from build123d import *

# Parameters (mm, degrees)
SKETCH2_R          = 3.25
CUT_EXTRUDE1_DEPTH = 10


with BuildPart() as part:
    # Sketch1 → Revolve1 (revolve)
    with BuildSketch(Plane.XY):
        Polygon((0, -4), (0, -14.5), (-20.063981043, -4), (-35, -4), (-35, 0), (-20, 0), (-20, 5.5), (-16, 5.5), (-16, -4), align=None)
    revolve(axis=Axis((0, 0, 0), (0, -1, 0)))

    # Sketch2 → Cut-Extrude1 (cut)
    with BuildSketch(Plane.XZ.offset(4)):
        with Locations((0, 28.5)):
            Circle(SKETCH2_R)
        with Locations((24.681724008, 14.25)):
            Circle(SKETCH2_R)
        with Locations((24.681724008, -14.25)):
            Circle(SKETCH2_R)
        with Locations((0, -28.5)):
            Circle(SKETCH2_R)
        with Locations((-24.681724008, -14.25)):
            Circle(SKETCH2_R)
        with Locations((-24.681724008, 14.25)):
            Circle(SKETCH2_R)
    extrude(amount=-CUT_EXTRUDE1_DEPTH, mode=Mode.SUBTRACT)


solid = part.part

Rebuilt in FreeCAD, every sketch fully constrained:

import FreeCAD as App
import Part
import Sketcher
from FreeCAD import Vector

doc = App.newDocument("Part")
body = doc.addObject("PartDesign::Body", "Body")

# Sketch on XY plane
sketch1 = body.newObject("Sketcher::SketchObject", "Sketch")
sketch1.AttachmentSupport = (doc.getObject("XY_Plane"), [""])
sketch1.MapMode = "FlatFace"
sketch1.addGeometry(Part.LineSegment(Vector(0, -14.5, 0), Vector(0, -4, 0)), False)
sketch1.addGeometry(Part.LineSegment(Vector(0, -4, 0), Vector(-16, -4, 0)), False)
sketch1.addGeometry(Part.LineSegment(Vector(-16, -4, 0), Vector(-16, 5.5, 0)), False)
sketch1.addGeometry(Part.LineSegment(Vector(-16, 5.5, 0), Vector(-20, 5.5, 0)), False)
sketch1.addGeometry(Part.LineSegment(Vector(-20, 5.5, 0), Vector(-20, 0, 0)), False)
sketch1.addGeometry(Part.LineSegment(Vector(-20, 0, 0), Vector(-35, 0, 0)), False)
sketch1.addGeometry(Part.LineSegment(Vector(-35, 0, 0), Vector(-35, -4, 0)), False)
sketch1.addGeometry(Part.LineSegment(Vector(-35, -4, 0), Vector(-20.1, -4, 0)), False)
sketch1.addGeometry(Part.LineSegment(Vector(-20.1, -4, 0), Vector(0, -14.5, 0)), False)
sketch1.addConstraint(Sketcher.Constraint("Coincident", 0, 2, 1, 1))
sketch1.addConstraint(Sketcher.Constraint("Coincident", 1, 2, 2, 1))
sketch1.addConstraint(Sketcher.Constraint("Coincident", 2, 2, 3, 1))
sketch1.addConstraint(Sketcher.Constraint("Coincident", 3, 2, 4, 1))
sketch1.addConstraint(Sketcher.Constraint("Coincident", 4, 2, 5, 1))
sketch1.addConstraint(Sketcher.Constraint("Coincident", 5, 2, 6, 1))
sketch1.addConstraint(Sketcher.Constraint("Coincident", 6, 2, 7, 1))
sketch1.addConstraint(Sketcher.Constraint("Coincident", 7, 2, 8, 1))
sketch1.addConstraint(Sketcher.Constraint("Coincident", 8, 2, 0, 1))
sketch1.addConstraint(Sketcher.Constraint("Vertical", 0))
sketch1.addConstraint(Sketcher.Constraint("Horizontal", 1))
sketch1.addConstraint(Sketcher.Constraint("Vertical", 2))
sketch1.addConstraint(Sketcher.Constraint("Horizontal", 3))
sketch1.addConstraint(Sketcher.Constraint("Vertical", 4))
sketch1.addConstraint(Sketcher.Constraint("Horizontal", 5))
sketch1.addConstraint(Sketcher.Constraint("Vertical", 6))
sketch1.addConstraint(Sketcher.Constraint("Horizontal", 7))
sketch1.addConstraint(Sketcher.Constraint("PointOnObject", 0, 2, -2))
sketch1.addConstraint(Sketcher.Constraint("PointOnObject", 4, 2, -1))
sketch1.addConstraint(Sketcher.Constraint("Horizontal", 1, 2, 6, 2))
sketch1.addConstraint(Sketcher.Constraint("Equal", 3, 6))
sketch1.addConstraint(Sketcher.Constraint("DistanceX", 1, 2, 1, 1, 16.0))
sketch1.addConstraint(Sketcher.Constraint("DistanceX", 3, 2, 3, 1, 4.0))
sketch1.addConstraint(Sketcher.Constraint("DistanceX", 5, 2, 5, 1, 15.0))
sketch1.addConstraint(Sketcher.Constraint("DistanceY", 0, 1, 0, 2, 10.5))
sketch1.addConstraint(Sketcher.Constraint("DistanceY", 2, 1, 2, 2, 9.5))
sketch1.addConstraint(Sketcher.Constraint("DistanceX", 7, 1, 7, 2, 14.936019))
revolution = body.newObject("PartDesign::Revolution", "Revolution")
revolution.Profile = sketch1
revolution.ReferenceAxis = (sketch1, ["V_Axis"])
revolution.Angle = 360

# Sketch on XZ plane
sketch2 = body.newObject("Sketcher::SketchObject", "Sketch001")
sketch2.AttachmentSupport = (doc.getObject("XZ_Plane"), [""])
sketch2.MapMode = "FlatFace"
sketch2.AttachmentOffset = App.Placement(Vector(0, 0, 4), App.Rotation())
sketch2.addGeometry(Part.Circle(Vector(0, 28.5, 0), Vector(0, 0, 1), 3.2), False)
sketch2.addGeometry(Part.Circle(Vector(24.7, 14.2, 0), Vector(0, 0, 1), 3.2), False)
sketch2.addGeometry(Part.Circle(Vector(24.7, -14.2, 0), Vector(0, 0, 1), 3.2), False)
sketch2.addGeometry(Part.Circle(Vector(0, -28.5, 0), Vector(0, 0, 1), 3.2), False)
sketch2.addGeometry(Part.Circle(Vector(-24.7, -14.2, 0), Vector(0, 0, 1), 3.2), False)
sketch2.addGeometry(Part.Circle(Vector(-24.7, 14.2, 0), Vector(0, 0, 1), 3.2), False)
sketch2.addConstraint(Sketcher.Constraint("Equal", 0, 1))
sketch2.addConstraint(Sketcher.Constraint("Equal", 1, 2))
sketch2.addConstraint(Sketcher.Constraint("Equal", 2, 3))
sketch2.addConstraint(Sketcher.Constraint("Equal", 3, 4))
sketch2.addConstraint(Sketcher.Constraint("Equal", 4, 5))
sketch2.addConstraint(Sketcher.Constraint("Symmetric", 0, 3, 3, 3, -1, 1))
sketch2.addConstraint(Sketcher.Constraint("Symmetric", 1, 3, 4, 3, -1, 1))
sketch2.addConstraint(Sketcher.Constraint("Symmetric", 2, 3, 5, 3, -1, 1))
sketch2.addConstraint(Sketcher.Constraint("Symmetric", 2, 3, 4, 3, -2))
sketch2.addConstraint(Sketcher.Constraint("PointOnObject", 0, 3, -2))
sketch2.addConstraint(Sketcher.Constraint("Diameter", 0, 6.5))
sketch2.addConstraint(Sketcher.Constraint("DistanceY", 3, 3, 0, 3, 57.0))
sketch2.addConstraint(Sketcher.Constraint("DistanceY", 2, 3, 1, 3, 28.5))
sketch2.addConstraint(Sketcher.Constraint("DistanceX", 4, 3, 2, 3, 49.363448))
pocket1 = body.newObject("PartDesign::Pocket", "Pocket")
pocket1.Profile = sketch2
pocket1.Length = 10

doc.recompute()
